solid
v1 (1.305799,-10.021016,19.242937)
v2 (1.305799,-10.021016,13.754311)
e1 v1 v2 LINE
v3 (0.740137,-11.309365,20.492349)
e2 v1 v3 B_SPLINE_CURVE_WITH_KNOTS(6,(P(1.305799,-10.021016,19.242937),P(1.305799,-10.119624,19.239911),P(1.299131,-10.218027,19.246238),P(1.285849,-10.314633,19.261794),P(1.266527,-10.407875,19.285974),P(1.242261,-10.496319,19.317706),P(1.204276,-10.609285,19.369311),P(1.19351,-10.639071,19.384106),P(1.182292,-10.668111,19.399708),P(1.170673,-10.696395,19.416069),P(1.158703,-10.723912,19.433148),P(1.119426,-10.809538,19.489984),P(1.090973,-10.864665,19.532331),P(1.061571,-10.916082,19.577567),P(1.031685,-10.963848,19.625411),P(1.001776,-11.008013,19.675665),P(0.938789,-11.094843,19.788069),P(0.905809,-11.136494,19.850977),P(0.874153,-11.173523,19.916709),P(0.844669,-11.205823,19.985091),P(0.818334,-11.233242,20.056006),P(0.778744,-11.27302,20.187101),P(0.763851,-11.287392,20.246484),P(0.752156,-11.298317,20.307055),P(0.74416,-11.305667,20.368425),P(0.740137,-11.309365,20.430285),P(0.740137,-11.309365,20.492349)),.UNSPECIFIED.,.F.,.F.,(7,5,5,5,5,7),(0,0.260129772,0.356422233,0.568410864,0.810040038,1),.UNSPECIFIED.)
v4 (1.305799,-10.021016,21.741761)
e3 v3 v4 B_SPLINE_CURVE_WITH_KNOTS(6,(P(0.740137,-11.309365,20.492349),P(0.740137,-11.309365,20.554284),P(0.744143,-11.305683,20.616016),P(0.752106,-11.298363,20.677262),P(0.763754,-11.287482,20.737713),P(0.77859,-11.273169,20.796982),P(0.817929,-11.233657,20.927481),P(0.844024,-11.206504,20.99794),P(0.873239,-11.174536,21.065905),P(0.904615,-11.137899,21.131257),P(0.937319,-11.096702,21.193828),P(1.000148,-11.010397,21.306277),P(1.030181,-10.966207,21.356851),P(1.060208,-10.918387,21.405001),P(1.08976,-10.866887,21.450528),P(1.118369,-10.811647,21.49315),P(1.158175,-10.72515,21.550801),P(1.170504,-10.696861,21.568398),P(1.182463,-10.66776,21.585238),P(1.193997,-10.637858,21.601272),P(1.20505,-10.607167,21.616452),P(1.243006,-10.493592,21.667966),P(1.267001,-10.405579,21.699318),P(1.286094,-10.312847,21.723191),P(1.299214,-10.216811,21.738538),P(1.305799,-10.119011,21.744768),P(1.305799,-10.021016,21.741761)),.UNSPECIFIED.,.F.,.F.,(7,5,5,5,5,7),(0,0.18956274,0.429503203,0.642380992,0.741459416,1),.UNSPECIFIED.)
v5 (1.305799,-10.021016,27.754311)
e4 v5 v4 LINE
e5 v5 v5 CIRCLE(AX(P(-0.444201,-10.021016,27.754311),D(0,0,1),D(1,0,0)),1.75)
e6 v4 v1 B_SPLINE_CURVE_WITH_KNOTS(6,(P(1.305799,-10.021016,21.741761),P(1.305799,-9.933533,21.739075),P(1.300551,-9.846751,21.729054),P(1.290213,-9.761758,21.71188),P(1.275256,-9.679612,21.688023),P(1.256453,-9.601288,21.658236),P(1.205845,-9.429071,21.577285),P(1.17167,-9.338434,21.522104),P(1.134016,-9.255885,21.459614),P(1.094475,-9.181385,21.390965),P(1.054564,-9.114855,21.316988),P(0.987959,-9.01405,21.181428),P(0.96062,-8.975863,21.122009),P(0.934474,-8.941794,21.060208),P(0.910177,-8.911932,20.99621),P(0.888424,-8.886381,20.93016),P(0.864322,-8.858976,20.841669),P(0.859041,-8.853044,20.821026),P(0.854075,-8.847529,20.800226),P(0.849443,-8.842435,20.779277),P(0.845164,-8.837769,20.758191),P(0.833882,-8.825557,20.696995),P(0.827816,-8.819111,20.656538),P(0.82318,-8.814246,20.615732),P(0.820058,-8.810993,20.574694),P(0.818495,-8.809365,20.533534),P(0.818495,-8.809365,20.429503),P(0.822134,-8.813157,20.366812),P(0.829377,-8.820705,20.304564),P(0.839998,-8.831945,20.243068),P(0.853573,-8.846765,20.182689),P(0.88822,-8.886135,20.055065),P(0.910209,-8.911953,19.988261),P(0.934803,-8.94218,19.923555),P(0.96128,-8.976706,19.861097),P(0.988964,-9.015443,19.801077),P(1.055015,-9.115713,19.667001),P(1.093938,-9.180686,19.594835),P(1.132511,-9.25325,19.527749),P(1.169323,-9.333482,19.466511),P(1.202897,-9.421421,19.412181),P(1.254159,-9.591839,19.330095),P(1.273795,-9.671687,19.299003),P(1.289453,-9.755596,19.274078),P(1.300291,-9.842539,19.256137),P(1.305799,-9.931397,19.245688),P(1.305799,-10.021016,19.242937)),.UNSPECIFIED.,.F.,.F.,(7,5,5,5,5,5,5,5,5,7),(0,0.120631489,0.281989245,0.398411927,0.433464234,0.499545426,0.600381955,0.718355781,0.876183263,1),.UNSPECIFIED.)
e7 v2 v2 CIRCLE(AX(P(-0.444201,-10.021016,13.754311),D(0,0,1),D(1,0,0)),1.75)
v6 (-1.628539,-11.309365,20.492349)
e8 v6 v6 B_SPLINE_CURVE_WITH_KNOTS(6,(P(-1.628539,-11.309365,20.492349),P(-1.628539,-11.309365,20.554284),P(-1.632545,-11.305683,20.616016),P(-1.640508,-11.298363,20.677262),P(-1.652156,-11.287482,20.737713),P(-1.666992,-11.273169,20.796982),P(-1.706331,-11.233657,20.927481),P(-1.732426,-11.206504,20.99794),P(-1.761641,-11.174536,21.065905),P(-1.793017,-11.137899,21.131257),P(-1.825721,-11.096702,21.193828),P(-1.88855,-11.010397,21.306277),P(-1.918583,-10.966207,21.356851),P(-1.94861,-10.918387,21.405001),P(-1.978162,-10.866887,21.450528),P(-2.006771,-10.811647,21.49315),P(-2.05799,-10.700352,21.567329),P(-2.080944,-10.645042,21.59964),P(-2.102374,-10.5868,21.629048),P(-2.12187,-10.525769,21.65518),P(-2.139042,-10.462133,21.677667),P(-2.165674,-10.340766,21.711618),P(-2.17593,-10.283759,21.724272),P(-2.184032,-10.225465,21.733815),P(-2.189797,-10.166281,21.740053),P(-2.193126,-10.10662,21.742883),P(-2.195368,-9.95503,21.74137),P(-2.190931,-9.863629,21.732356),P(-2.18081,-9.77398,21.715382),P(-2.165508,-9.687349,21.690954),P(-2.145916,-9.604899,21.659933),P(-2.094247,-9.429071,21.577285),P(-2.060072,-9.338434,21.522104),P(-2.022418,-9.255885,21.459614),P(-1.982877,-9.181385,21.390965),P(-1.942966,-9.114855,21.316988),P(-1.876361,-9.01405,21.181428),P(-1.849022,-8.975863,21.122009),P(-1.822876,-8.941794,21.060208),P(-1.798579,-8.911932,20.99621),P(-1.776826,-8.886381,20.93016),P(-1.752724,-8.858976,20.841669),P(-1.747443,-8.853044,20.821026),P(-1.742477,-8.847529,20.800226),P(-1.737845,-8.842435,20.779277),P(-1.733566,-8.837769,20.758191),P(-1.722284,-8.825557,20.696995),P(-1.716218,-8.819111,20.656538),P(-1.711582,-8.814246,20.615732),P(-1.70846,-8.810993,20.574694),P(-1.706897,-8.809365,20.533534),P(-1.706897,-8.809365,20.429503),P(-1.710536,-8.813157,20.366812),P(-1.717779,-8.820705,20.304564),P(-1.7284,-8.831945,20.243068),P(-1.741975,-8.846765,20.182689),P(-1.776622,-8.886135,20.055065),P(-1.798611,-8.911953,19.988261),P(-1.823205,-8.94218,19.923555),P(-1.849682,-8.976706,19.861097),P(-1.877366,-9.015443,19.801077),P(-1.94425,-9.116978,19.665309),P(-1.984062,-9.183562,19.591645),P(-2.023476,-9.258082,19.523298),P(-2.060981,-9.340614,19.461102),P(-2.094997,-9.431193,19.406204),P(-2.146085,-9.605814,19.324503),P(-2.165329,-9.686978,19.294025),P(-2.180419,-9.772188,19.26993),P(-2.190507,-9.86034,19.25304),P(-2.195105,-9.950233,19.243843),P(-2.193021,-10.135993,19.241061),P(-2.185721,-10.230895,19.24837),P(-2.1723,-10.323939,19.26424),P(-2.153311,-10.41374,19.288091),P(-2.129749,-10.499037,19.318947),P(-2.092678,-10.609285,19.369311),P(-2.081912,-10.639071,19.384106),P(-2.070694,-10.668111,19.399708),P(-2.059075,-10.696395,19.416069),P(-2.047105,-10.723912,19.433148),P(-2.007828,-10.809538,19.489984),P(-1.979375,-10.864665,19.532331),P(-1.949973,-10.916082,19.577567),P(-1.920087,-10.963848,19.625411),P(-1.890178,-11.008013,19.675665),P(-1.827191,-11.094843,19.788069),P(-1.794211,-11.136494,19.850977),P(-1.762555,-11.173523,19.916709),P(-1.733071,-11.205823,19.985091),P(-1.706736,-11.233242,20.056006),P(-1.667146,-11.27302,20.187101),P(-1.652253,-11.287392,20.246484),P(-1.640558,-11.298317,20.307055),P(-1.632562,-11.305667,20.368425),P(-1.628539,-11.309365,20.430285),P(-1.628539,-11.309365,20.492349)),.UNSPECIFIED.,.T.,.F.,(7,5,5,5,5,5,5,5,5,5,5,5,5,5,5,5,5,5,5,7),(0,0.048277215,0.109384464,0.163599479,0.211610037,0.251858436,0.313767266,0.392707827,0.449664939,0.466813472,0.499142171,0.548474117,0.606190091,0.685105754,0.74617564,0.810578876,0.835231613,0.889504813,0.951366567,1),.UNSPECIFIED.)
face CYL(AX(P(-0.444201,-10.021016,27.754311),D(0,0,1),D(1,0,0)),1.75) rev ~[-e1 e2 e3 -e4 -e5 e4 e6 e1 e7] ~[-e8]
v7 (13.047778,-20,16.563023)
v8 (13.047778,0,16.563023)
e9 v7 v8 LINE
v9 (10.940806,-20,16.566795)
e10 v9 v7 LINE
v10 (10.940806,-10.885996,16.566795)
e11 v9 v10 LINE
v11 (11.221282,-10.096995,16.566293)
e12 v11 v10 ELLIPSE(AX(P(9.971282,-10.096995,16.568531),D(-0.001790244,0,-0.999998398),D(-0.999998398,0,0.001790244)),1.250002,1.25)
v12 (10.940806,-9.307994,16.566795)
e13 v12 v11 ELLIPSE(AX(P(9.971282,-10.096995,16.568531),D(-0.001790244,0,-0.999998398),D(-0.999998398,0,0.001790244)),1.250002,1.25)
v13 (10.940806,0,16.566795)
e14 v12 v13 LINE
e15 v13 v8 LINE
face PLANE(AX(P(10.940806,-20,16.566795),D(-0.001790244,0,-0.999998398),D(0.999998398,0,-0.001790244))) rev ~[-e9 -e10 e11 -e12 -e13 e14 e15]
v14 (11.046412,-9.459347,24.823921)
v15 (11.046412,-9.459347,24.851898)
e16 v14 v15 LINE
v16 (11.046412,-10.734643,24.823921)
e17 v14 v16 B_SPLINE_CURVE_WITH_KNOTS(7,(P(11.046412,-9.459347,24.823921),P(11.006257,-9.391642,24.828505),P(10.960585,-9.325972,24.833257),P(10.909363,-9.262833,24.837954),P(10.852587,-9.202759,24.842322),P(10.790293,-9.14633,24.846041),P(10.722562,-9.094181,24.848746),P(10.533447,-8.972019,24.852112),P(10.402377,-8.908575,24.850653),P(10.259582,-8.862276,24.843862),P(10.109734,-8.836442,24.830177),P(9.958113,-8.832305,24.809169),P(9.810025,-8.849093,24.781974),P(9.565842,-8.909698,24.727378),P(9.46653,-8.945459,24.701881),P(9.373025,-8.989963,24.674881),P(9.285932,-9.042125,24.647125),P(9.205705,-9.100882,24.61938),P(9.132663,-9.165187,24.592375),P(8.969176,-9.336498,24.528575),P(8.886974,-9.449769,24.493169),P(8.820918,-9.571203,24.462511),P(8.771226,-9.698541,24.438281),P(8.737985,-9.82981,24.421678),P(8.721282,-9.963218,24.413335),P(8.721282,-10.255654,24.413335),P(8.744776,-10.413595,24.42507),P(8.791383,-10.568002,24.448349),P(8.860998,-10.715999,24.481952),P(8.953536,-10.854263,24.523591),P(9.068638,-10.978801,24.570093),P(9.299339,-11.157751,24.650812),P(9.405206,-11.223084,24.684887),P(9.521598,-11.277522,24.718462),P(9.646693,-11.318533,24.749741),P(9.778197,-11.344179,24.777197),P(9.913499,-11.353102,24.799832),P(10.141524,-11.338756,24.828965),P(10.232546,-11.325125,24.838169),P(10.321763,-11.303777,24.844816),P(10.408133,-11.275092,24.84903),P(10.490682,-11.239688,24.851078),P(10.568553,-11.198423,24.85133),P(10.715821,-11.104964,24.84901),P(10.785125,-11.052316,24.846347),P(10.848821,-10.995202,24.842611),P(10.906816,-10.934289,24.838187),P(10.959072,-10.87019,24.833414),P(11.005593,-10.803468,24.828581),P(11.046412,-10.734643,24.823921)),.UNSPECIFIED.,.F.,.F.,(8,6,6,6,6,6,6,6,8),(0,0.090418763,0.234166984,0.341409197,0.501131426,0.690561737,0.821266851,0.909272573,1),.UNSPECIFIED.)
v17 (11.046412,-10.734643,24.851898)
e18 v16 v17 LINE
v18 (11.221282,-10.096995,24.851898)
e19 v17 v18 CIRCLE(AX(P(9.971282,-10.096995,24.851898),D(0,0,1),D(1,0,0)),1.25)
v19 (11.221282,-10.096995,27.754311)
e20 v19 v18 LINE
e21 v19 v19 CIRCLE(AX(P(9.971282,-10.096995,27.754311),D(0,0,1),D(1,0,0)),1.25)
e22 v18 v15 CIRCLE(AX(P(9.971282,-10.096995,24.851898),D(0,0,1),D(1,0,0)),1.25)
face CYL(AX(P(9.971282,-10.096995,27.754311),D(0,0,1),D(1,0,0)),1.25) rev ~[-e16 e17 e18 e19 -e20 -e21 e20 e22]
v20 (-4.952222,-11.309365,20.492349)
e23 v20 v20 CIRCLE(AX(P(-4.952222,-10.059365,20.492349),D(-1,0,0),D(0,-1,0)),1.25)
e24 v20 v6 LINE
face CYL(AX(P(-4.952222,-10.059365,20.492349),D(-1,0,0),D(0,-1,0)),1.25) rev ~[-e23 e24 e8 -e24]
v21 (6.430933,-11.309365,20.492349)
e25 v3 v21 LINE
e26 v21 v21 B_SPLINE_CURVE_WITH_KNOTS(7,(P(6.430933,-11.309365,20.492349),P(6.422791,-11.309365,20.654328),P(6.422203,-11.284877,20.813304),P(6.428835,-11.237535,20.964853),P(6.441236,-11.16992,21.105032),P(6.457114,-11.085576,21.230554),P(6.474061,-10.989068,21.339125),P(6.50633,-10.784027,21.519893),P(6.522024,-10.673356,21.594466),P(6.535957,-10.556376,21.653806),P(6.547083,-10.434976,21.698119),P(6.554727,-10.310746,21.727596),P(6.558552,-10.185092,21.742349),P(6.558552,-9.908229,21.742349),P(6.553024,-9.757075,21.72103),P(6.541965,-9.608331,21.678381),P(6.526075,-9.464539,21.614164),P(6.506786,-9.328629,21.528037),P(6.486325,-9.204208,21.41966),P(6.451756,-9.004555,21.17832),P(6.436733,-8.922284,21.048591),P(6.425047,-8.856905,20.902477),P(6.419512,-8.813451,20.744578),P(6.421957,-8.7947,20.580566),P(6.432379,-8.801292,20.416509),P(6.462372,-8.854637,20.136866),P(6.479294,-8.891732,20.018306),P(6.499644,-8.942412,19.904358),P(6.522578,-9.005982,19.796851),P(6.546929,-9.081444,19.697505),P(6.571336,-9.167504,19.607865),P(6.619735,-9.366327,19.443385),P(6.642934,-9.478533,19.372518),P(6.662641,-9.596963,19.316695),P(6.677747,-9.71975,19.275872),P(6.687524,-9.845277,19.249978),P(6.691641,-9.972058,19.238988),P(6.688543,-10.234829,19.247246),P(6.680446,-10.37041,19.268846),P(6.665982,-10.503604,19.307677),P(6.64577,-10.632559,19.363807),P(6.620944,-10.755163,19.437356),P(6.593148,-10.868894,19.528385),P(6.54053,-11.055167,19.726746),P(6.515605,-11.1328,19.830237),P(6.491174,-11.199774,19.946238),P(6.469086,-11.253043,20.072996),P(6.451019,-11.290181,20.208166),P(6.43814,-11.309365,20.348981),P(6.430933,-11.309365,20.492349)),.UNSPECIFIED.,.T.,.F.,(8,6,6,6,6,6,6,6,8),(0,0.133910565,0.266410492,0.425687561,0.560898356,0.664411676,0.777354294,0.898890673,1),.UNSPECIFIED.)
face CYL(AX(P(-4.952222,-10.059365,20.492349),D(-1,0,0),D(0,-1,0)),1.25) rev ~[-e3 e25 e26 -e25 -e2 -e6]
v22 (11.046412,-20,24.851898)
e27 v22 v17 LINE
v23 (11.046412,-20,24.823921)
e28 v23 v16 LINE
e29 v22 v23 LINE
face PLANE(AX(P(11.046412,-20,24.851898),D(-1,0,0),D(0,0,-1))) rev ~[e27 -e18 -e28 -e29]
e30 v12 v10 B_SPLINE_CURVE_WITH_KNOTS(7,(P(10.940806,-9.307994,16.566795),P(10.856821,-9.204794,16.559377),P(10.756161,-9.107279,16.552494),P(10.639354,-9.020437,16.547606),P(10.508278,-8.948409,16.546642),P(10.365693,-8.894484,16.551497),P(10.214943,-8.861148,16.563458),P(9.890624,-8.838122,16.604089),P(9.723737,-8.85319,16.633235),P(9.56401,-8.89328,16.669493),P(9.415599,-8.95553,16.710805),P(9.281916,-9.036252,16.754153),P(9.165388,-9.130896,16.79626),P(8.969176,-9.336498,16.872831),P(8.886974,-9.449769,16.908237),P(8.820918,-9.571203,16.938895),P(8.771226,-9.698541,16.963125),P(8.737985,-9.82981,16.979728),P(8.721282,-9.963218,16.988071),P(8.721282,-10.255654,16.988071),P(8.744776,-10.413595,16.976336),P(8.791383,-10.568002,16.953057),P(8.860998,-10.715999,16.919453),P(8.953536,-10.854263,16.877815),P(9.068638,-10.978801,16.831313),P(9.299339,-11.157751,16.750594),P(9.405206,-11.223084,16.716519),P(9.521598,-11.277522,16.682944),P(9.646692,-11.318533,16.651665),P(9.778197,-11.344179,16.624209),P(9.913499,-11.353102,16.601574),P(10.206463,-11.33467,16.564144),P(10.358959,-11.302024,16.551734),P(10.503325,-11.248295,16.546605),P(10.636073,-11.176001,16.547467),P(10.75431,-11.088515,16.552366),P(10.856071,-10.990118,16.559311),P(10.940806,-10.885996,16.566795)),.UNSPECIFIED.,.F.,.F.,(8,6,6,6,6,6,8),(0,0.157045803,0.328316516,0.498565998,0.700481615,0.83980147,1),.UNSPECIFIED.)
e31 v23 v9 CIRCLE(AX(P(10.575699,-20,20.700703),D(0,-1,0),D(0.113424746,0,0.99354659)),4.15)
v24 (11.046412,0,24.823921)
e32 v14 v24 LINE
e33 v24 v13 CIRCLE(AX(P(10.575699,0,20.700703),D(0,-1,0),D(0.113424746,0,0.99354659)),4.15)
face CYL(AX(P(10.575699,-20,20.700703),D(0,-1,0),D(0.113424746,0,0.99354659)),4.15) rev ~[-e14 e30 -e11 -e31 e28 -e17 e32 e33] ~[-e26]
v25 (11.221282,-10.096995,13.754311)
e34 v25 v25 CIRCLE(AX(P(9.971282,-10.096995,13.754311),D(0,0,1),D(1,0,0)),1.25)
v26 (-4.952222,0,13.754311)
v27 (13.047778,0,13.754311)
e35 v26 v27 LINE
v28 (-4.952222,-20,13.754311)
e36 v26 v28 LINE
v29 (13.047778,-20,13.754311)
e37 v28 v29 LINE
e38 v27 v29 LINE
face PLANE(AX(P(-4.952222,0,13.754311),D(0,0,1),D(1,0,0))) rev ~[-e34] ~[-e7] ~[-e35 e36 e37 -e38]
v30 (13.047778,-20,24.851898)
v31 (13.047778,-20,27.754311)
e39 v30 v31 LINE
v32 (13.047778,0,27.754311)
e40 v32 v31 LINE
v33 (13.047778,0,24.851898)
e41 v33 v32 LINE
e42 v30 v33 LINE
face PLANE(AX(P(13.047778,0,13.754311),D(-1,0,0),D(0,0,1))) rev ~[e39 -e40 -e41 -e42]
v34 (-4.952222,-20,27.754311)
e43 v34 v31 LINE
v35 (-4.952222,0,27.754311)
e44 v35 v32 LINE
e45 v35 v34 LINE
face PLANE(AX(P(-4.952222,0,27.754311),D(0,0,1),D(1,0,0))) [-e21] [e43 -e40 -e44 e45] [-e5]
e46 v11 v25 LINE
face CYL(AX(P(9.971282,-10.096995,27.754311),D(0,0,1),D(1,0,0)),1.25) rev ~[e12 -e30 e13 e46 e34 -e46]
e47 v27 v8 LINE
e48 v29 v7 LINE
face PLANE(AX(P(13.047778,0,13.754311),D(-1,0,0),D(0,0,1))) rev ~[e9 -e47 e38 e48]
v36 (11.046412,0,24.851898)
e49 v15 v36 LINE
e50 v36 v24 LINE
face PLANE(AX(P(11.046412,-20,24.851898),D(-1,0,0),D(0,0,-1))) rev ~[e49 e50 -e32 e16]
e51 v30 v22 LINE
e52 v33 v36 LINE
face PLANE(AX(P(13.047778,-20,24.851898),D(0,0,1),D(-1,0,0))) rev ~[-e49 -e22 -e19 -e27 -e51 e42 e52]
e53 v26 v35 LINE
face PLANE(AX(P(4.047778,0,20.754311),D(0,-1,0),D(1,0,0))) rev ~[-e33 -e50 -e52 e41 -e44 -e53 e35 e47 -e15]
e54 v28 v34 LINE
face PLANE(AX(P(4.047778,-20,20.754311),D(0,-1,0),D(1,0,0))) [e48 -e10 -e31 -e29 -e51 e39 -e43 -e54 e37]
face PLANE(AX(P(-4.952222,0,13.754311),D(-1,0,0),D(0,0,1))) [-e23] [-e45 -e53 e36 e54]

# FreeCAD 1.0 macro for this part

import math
import FreeCAD as App
import Part
import Sketcher

V = App.Vector

doc = App.newDocument("Part")
body = doc.addObject("PartDesign::Body", "Body")

# Sketch on XZ plane
sketch1 = body.newObject("Sketcher::SketchObject", "Sketch")
sketch1.AttachmentSupport = (doc.getObject("XZ_Plane"), [""])
sketch1.MapMode = "FlatFace"
sketch1.addGeometry([
    Part.LineSegment(V(-4.952222, 27.754311, 0), V(-4.952222, 13.754311, 0)),
    Part.LineSegment(V(-4.952222, 13.754311, 0), V(13.047778, 13.754311, 0)),
    Part.LineSegment(V(13.047778, 13.754311, 0), V(13.047778, 27.754311, 0)),
    Part.LineSegment(V(13.047778, 27.754311, 0), V(-4.952222, 27.754311, 0)),
], False)
sketch1.addConstraint([
    Sketcher.Constraint("Coincident", 0, 2, 1, 1),
    Sketcher.Constraint("Coincident", 1, 2, 2, 1),
    Sketcher.Constraint("Coincident", 2, 2, 3, 1),
    Sketcher.Constraint("Coincident", 3, 2, 0, 1),
    Sketcher.Constraint("Vertical", 0),
    Sketcher.Constraint("Horizontal", 1),
    Sketcher.Constraint("Vertical", 2),
    Sketcher.Constraint("Horizontal", 3),
    Sketcher.Constraint("DistanceX", 1, 1, 1, 2, 18.0),
    Sketcher.Constraint("DistanceY", 0, 2, 0, 1, 14.0),
    Sketcher.Constraint("DistanceY", -1, 1, 0, 2, 13.754311),
    Sketcher.Constraint("DistanceX", 0, 2, -1, 1, 4.952222),
])
pad1 = body.newObject("PartDesign::Pad", "Pad")
pad1.Profile = sketch1
pad1.Length = 20

# Sketch on XZ plane
sketch2 = body.newObject("Sketcher::SketchObject", "Sketch001")
sketch2.AttachmentSupport = (doc.getObject("XZ_Plane"), [""])
sketch2.MapMode = "FlatFace"
sketch2.AttachmentOffset = App.Placement(V(0, 0, 20), App.Rotation())
sketch2.addGeometry([
    Part.ArcOfCircle(Part.Circle(V(10.575699, 20.700703, 0), V(0, 0, 1), 4.15), math.radians(83.487225), math.radians(275.047266)),  # 0
    Part.LineSegment(V(10.940806, 16.566795, 0), V(13.047778, 16.563023, 0)),  # 1
    Part.LineSegment(V(13.047778, 16.563023, 0), V(13.047778, 24.851898, 0)),  # 2
    Part.LineSegment(V(13.047778, 24.851898, 0), V(11.046412, 24.851898, 0)),  # 3
    Part.LineSegment(V(11.046412, 24.851898, 0), V(11.046412, 24.823921, 0)),  # 4
], False)
sketch2.addConstraint([
    Sketcher.Constraint("Coincident", 0, 2, 1, 1),
    Sketcher.Constraint("Coincident", 1, 2, 2, 1),
    Sketcher.Constraint("Coincident", 2, 2, 3, 1),
    Sketcher.Constraint("Coincident", 3, 2, 4, 1),
    Sketcher.Constraint("Coincident", 4, 2, 0, 1),
    Sketcher.Constraint("Vertical", 2),
    Sketcher.Constraint("Horizontal", 3),
    Sketcher.Constraint("Vertical", 4),
    Sketcher.Constraint("Radius", 0, 4.15),
    Sketcher.Constraint("DistanceX", -1, 1, 0, 3, 10.575699),
    Sketcher.Constraint("DistanceX", 3, 2, 3, 1, 2.001366),
    Sketcher.Constraint("DistanceY", 2, 1, 2, 2, 8.288875),
    Sketcher.Constraint("DistanceY", 4, 2, 4, 1, 0.027977),
    Sketcher.Constraint("DistanceY", -1, 1, 4, 2, 24.823921),
    Sketcher.Constraint("DistanceX", 0, 2, 1, 2, 2.106972),
    Sketcher.Constraint("DistanceY", 1, 2, 0, 2, 0.003772),
])
pocket1 = body.newObject("PartDesign::Pocket", "Pocket")
pocket1.Profile = sketch2
pocket1.Length = 20

# Sketch on XY plane
sketch3 = body.newObject("Sketcher::SketchObject", "Sketch002")
sketch3.AttachmentSupport = (doc.getObject("XY_Plane"), [""])
sketch3.MapMode = "FlatFace"
sketch3.AttachmentOffset = App.Placement(V(0, 0, 27.754311), App.Rotation())
sketch3.addGeometry([
    Part.Circle(V(9.971282, -10.096995, 0), V(0, 0, 1), 1.25),
    Part.Circle(V(-0.444201, -10.021016, 0), V(0, 0, 1), 1.75),
], False)
sketch3.addConstraint([
    Sketcher.Constraint("Diameter", 0, 2.5),
    Sketcher.Constraint("Diameter", 1, 3.5),
    Sketcher.Constraint("DistanceX", 1, 3, -1, 1, 0.444201),
    Sketcher.Constraint("DistanceY", 0, 3, 1, 3, 0.075979),
    Sketcher.Constraint("DistanceX", -1, 1, 0, 3, 9.971282),
    Sketcher.Constraint("DistanceY", 0, 3, -1, 1, 10.096995),
])
pocket2 = body.newObject("PartDesign::Pocket", "Pocket001")
pocket2.Profile = sketch3
pocket2.Length = 25

# Sketch on YZ plane
sketch4 = body.newObject("Sketcher::SketchObject", "Sketch003")
sketch4.AttachmentSupport = (doc.getObject("YZ_Plane"), [""])
sketch4.MapMode = "FlatFace"
sketch4.AttachmentOffset = App.Placement(V(0, 0, -4.952222), App.Rotation())
sketch4.addGeometry(Part.Circle(V(-10.059365, 20.492349, 0), V(0, 0, 1), 1.25), False)
sketch4.addConstraint([
    Sketcher.Constraint("Diameter", 0, 2.5),
    Sketcher.Constraint("DistanceY", -1, 1, 0, 3, 20.492349),
    Sketcher.Constraint("DistanceX", 0, 3, -1, 1, 10.059365),
])
pocket3 = body.newObject("PartDesign::Pocket", "Pocket002")
pocket3.Profile = sketch4
pocket3.Length = 25
pocket3.Reversed = True

doc.recompute()
